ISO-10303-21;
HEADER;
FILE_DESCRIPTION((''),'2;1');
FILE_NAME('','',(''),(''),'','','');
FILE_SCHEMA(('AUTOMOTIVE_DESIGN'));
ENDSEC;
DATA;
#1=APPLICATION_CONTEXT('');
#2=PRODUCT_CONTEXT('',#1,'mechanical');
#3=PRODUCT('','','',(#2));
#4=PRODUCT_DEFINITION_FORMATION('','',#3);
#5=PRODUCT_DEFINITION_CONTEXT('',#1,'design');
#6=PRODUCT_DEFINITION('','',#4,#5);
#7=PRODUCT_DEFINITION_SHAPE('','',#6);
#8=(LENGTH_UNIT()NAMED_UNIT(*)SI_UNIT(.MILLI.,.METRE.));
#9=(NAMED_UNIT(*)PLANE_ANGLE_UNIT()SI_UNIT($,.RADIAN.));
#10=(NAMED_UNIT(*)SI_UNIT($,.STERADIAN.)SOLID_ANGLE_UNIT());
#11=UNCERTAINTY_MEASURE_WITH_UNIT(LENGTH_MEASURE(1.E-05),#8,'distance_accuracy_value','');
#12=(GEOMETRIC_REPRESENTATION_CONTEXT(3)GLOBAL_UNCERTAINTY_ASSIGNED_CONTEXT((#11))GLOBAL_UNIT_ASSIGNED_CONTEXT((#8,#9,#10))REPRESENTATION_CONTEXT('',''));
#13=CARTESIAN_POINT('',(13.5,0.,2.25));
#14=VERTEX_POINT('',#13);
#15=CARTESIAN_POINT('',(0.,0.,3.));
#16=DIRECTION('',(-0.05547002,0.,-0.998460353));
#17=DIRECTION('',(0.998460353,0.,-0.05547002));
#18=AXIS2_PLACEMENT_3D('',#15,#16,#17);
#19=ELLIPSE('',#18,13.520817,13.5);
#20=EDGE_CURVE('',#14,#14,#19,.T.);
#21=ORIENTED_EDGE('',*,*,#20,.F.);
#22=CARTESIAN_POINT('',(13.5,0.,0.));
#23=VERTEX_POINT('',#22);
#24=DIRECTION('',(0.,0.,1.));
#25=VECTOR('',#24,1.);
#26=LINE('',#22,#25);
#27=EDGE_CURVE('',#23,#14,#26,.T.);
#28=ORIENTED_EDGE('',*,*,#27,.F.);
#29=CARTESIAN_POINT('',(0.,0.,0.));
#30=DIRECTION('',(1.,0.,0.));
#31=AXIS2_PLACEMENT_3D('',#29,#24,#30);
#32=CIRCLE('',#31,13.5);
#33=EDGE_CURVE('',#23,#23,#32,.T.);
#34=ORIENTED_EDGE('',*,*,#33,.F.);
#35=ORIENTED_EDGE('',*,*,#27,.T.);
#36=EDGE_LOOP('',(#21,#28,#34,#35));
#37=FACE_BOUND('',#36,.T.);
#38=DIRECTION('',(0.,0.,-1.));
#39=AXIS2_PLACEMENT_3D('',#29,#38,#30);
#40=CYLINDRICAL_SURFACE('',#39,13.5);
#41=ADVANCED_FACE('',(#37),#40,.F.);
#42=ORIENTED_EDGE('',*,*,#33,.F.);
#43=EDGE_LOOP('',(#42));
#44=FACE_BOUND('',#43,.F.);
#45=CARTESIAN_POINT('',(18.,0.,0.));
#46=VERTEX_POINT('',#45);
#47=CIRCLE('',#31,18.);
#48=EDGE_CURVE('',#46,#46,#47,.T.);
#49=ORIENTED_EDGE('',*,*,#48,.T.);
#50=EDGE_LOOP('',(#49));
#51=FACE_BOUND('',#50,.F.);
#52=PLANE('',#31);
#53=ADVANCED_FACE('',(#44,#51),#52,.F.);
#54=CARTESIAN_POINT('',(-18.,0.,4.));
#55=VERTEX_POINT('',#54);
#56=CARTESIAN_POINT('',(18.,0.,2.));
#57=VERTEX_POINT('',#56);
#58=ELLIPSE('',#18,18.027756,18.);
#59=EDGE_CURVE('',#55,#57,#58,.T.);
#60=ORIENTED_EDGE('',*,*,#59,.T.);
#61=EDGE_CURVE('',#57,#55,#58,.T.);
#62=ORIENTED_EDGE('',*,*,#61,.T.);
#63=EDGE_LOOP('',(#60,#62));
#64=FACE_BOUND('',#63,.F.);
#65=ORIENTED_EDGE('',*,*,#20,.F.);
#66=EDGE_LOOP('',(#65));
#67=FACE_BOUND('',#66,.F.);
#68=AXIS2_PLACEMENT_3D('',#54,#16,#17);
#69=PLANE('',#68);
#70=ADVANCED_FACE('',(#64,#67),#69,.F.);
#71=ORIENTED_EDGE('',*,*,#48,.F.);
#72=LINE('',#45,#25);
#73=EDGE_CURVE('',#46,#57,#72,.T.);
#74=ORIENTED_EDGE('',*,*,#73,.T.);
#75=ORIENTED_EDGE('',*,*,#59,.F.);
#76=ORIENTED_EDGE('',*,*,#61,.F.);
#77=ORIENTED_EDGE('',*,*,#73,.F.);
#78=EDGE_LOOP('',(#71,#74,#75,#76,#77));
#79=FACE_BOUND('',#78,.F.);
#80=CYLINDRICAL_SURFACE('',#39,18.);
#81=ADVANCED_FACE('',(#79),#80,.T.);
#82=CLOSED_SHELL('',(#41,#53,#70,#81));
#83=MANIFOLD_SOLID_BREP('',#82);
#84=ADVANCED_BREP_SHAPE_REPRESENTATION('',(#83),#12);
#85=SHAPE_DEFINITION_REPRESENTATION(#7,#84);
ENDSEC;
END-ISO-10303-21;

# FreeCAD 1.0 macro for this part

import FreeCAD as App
import Part
import Sketcher
from FreeCAD import Vector
Q = App.Units.Quantity


def add_polygon(sketch, points):
    """Adds a closed chain of lines whose ends are joined by coincident constraints."""
    first, n = sketch.GeometryCount, len(points)
    for a, b in zip(points, points[1:] + points[:1]):
        sketch.addGeometry(Part.LineSegment(App.Vector(*a, 0), App.Vector(*b, 0)), False)
    for i in range(n):
        sketch.addConstraint(Sketcher.Constraint("Coincident", first + i, 2, first + (i + 1) % n, 1))

doc = App.newDocument("Part")
body = doc.addObject("PartDesign::Body", "Body")

# Sketch on XY plane
sketch1 = body.newObject("Sketcher::SketchObject", "Sketch")
sketch1.AttachmentSupport = (doc.getObject("XY_Plane"), [""])
sketch1.MapMode = "FlatFace"
sketch1.addGeometry([
    Part.Circle(Vector(0, 0, 0), Vector(0, 0, 1), 18),
    Part.Circle(Vector(0, 0, 0), Vector(0, 0, 1), 14),
], False)
sketch1.addConstraint([
    Sketcher.Constraint("Coincident", 0, 3, -1, 1),
    Sketcher.Constraint("Coincident", 1, 3, -1, 1),
    Sketcher.Constraint("Diameter", 0, 36.0),
    Sketcher.Constraint("Diameter", 1, 27.0),
])
pad1 = body.newObject("PartDesign::Pad", "Pad")
pad1.Profile = sketch1
pad1.Length = 4

# Sketch on XZ plane
sketch2 = body.newObject("Sketcher::SketchObject", "Sketch001")
sketch2.AttachmentSupport = (doc.getObject("XZ_Plane"), [""])
sketch2.MapMode = "FlatFace"
add_polygon(sketch2, [(18, 2), (-18, 4), (-20, 6.7), (19.7, 6.7)])  # lines 0-3
sketch2.addConstraint([
    Sketcher.Constraint("Horizontal", 2),
    Sketcher.Constraint("DistanceY", -1, 1, 0, 2, 4.0),
    Sketcher.Constraint("DistanceY", -1, 1, 3, 2, 2.0),
    Sketcher.Constraint("DistanceX", 1, 2, 0, 2, 2.0),
    Sketcher.Constraint("DistanceX", 0, 2, -1, 1, 18.0),
    Sketcher.Constraint("DistanceX", -1, 1, 3, 2, 18.0),
    Sketcher.Constraint("Angle", 1, Q("126.7605 deg")),
    Sketcher.Constraint("DistanceX", 2, 1, 2, 2, 39.6734),
])
pocket1 = body.newObject("PartDesign::Pocket", "Pocket")
pocket1.Profile = sketch2
pocket1.Length = 42
pocket1.Midplane = True

doc.recompute()
